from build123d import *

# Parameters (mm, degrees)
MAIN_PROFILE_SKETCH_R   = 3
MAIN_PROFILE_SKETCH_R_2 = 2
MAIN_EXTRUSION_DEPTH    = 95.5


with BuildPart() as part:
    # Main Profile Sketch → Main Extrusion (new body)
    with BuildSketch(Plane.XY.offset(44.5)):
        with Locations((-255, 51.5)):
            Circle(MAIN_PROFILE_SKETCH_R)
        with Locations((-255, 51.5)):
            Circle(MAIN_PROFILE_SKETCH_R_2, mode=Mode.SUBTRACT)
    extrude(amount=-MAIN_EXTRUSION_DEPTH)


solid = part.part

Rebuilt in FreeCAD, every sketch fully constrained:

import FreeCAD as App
import Part
import Sketcher
from FreeCAD import Vector

doc = App.newDocument("Part")
params = doc.addObject("Spreadsheet::Sheet", "Params")
for row, (alias, value) in enumerate([
    ("sketch1_diameter", "6 mm"),
    ("sketch1_diameter2", "4 mm"),
    ("pad1_length", "95.5 mm"),
], start=1):
    params.set(f"A{row}", alias)
    params.set(f"B{row}", "=" + value)
    params.setAlias(f"B{row}", alias)

body = doc.addObject("PartDesign::Body", "Body")

sketch1 = body.newObject("Sketcher::SketchObject", "Sketch")
sketch1.AttachmentSupport = (doc.getObject("XY_Plane"), [""])
sketch1.MapMode = "FlatFace"
sketch1.AttachmentOffset = App.Placement(Vector(0, 0, 44.5), App.Rotation())
sketch1.addGeometry([
    Part.Circle(Vector(-255, 51.5, 0), Vector(0, 0, 1), 3),
    Part.Circle(Vector(-255, 51.5, 0), Vector(0, 0, 1), 2),
], False)
sketch1.addConstraint([
    Sketcher.Constraint("Coincident", 1, 3, 0, 3),
    Sketcher.Constraint("Diameter", 0, 6.0),
    Sketcher.Constraint("Diameter", 1, 4.0),
    Sketcher.Constraint("DistanceX", 0, 3, -1, 1, 255.0),
    Sketcher.Constraint("DistanceY", -1, 1, 0, 3, 51.5),
])
sketch1.setExpression("Constraints[1]", "Params.sketch1_diameter")
sketch1.setExpression("Constraints[2]", "Params.sketch1_diameter2")
pad1 = body.newObject("PartDesign::Pad", "Pad")
pad1.Profile = sketch1
pad1.setExpression("Length", "Params.pad1_length")
pad1.Reversed = True

doc.recompute()
